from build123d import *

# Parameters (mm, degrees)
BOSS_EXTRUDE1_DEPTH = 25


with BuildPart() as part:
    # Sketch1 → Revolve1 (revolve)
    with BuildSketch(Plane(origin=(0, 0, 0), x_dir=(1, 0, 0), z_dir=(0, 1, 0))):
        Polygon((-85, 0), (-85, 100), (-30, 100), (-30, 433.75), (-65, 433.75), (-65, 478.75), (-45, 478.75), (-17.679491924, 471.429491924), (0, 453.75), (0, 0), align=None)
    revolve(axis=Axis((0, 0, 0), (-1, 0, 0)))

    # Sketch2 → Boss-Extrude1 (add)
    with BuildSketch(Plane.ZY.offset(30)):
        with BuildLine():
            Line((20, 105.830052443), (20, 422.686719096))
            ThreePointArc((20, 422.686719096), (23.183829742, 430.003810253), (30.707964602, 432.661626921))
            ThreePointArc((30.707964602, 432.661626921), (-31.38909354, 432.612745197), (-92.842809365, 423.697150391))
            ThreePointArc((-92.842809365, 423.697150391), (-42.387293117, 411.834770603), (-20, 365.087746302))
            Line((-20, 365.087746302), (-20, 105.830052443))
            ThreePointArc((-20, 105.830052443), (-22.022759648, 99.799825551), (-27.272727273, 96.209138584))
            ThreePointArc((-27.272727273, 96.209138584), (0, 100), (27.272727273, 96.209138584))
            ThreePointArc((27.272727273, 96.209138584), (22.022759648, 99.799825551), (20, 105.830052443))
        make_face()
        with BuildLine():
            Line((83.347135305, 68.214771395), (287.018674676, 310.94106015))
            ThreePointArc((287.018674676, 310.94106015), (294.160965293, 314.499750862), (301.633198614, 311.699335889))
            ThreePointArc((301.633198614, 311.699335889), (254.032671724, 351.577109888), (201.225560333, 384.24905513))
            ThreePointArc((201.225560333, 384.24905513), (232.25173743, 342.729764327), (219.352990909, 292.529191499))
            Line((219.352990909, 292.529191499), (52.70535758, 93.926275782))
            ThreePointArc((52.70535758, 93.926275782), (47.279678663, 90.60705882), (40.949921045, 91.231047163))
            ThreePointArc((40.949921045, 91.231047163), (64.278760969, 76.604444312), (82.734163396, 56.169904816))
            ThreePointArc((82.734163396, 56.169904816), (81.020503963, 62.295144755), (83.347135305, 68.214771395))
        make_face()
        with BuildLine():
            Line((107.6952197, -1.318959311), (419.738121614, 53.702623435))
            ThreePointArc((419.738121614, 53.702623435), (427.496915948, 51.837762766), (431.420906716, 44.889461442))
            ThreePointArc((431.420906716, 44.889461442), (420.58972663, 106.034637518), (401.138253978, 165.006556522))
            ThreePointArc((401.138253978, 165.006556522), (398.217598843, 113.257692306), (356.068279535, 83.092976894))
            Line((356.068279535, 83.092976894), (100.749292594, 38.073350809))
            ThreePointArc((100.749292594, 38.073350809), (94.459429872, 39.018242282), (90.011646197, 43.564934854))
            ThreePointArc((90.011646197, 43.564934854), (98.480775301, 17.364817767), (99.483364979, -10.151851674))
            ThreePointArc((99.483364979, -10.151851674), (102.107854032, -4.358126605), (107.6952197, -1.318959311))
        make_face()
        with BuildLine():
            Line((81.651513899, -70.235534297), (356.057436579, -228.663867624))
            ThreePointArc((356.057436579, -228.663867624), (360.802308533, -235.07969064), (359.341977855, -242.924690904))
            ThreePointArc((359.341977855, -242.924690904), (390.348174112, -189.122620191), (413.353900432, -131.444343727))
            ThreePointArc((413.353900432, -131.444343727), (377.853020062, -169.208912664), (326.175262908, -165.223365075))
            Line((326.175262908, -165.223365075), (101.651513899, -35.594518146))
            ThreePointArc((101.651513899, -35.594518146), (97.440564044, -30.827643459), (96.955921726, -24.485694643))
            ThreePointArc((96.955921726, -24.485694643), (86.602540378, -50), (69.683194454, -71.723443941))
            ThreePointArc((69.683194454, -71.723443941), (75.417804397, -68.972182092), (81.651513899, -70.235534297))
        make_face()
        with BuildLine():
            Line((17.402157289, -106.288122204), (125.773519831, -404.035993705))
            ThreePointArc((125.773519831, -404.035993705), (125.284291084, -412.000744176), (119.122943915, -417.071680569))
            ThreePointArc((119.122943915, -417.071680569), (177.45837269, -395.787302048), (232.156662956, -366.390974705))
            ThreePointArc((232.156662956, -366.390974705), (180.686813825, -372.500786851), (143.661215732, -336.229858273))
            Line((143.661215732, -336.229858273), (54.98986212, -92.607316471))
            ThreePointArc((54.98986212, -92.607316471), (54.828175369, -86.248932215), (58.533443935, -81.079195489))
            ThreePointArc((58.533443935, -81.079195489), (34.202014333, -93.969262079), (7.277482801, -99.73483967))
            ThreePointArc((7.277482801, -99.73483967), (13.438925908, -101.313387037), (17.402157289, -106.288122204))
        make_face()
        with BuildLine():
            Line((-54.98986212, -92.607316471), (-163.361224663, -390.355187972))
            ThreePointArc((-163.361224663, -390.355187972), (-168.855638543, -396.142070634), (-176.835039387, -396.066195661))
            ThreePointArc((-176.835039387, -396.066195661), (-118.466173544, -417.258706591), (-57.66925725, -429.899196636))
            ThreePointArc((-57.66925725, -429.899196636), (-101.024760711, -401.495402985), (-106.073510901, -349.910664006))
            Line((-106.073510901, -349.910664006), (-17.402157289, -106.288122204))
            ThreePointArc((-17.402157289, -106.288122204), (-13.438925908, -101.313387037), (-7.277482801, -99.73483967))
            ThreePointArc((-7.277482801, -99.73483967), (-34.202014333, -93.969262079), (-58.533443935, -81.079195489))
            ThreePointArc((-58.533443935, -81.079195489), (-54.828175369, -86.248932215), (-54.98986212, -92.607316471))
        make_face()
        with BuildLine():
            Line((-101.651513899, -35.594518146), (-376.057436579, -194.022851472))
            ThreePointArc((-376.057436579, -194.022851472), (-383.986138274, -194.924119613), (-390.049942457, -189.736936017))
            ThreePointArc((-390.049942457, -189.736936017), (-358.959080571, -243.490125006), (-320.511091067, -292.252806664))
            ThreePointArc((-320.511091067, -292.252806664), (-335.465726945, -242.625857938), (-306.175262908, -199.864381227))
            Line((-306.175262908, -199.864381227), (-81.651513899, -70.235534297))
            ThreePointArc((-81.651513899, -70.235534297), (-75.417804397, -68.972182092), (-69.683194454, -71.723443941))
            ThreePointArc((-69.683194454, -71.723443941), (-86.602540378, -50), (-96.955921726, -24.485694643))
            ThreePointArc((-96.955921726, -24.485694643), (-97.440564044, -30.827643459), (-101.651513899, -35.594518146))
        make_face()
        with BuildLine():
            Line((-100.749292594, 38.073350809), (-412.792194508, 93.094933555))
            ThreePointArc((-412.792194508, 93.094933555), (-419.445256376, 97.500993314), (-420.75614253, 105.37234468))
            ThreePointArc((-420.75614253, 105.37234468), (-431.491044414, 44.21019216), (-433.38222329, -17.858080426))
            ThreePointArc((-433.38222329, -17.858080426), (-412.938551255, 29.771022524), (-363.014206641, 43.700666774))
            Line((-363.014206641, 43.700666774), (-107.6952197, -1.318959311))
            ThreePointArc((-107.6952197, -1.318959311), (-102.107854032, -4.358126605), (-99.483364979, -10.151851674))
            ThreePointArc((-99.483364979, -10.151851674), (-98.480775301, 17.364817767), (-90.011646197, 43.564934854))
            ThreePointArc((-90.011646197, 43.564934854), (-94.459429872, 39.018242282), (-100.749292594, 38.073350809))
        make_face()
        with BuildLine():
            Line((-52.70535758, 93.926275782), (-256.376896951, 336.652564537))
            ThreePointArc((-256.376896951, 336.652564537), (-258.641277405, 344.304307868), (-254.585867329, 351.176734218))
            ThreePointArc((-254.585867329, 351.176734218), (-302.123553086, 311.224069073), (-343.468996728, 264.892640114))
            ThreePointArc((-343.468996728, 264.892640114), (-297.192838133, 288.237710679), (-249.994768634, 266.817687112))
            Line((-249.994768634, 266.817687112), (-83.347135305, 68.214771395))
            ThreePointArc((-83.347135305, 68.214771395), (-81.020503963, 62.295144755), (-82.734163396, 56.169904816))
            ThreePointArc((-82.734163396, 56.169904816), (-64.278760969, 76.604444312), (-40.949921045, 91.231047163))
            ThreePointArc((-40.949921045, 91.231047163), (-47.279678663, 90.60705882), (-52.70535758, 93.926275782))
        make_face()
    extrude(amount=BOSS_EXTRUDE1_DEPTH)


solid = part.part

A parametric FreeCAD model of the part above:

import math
import FreeCAD as App
import Part
import Sketcher

V = App.Vector
Q = App.Units.Quantity

doc = App.newDocument("Part")
body = doc.addObject("PartDesign::Body", "Body")

sketch1 = doc.addObject("Sketcher::SketchObject", "Sketch")
body.addObject(sketch1)
sketch1.AttachmentSupport = (doc.XZ_Plane, [""])
sketch1.MapMode = "FlatFace"
sketch1.addGeometry([
    Part.LineSegment(V(-85, -100, 0), V(-85, 0, 0)),
    Part.LineSegment(V(-85, 0, 0), V(0, 0, 0)),
    Part.LineSegment(V(0, 0, 0), V(0, -453.75, 0)),
    Part.LineSegment(V(0, -453.75, 0), V(-17.679492, -471.429492, 0)),
    Part.LineSegment(V(-17.679492, -471.429492, 0), V(-45, -478.75, 0)),
    Part.LineSegment(V(-45, -478.75, 0), V(-65, -478.75, 0)),
    Part.LineSegment(V(-65, -478.75, 0), V(-65, -433.75, 0)),
    Part.LineSegment(V(-65, -433.75, 0), V(-30, -433.75, 0)),
    Part.LineSegment(V(-30, -433.75, 0), V(-30, -100, 0)),
    Part.LineSegment(V(-30, -100, 0), V(-85, -100, 0)),
], False)
sketch1.addConstraint([
    Sketcher.Constraint("Coincident", 0, 2, 1, 1),
    Sketcher.Constraint("Coincident", 1, 2, 2, 1),
    Sketcher.Constraint("Coincident", 2, 2, 3, 1),
    Sketcher.Constraint("Coincident", 3, 2, 4, 1),
    Sketcher.Constraint("Coincident", 4, 2, 5, 1),
    Sketcher.Constraint("Coincident", 5, 2, 6, 1),
    Sketcher.Constraint("Coincident", 6, 2, 7, 1),
    Sketcher.Constraint("Coincident", 7, 2, 8, 1),
    Sketcher.Constraint("Coincident", 8, 2, 9, 1),
    Sketcher.Constraint("Coincident", 9, 2, 0, 1),
    Sketcher.Constraint("Vertical", 0),
    Sketcher.Constraint("Horizontal", 1),
    Sketcher.Constraint("Vertical", 2),
    Sketcher.Constraint("Horizontal", 5),
    Sketcher.Constraint("Vertical", 6),
    Sketcher.Constraint("Horizontal", 7),
    Sketcher.Constraint("Vertical", 8),
    Sketcher.Constraint("Horizontal", 9),
    Sketcher.Constraint("Coincident", 1, 2, -1, 1),
    Sketcher.Constraint("DistanceX", 1, 1, 1, 2, Q("85 mm")),
    Sketcher.Constraint("DistanceX", 5, 2, 5, 1, Q("20 mm")),
    Sketcher.Constraint("DistanceX", 7, 1, 7, 2, Q("35 mm")),
    Sketcher.Constraint("DistanceX", 9, 2, 9, 1, Q("55 mm")),
    Sketcher.Constraint("DistanceY", 0, 1, 0, 2, Q("100 mm")),
    Sketcher.Constraint("DistanceY", 6, 1, 6, 2, Q("45 mm")),
    Sketcher.Constraint("Angle", 3, Q("-135 deg")),
    Sketcher.Constraint("Angle", 4, Q("-165 deg")),
    Sketcher.Constraint("DistanceY", 4, 2, 2, 2, Q("25 mm")),
    Sketcher.Constraint("DistanceY", 2, 2, 2, 1, Q("453.75 mm")),
])
revolution = doc.addObject("PartDesign::Revolution", "Revolution")
body.addObject(revolution)
revolution.Profile = sketch1
revolution.ReferenceAxis = (sketch1, ["H_Axis"])
revolution.Angle = 360

sketch2 = doc.addObject("Sketcher::SketchObject", "Sketch001")
body.addObject(sketch2)
sketch2.AttachmentSupport = (doc.YZ_Plane, [""])
sketch2.MapMode = "FlatFace"
sketch2.AttachmentOffset = App.Placement(V(0, 0, -30), App.Rotation())
sketch2.addGeometry([
    Part.LineSegment(V(105.830052, 20, 0), V(422.686719, 20, 0)),
    Part.ArcOfCircle(Part.Circle(V(422.686719, 30, 0), V(0, 0, 1), 10), math.radians(-90), math.radians(4.059735)),
    Part.ArcOfCircle(Part.Circle(V(0, 0, 0), V(0, 0, 1), 433.75), math.radians(-12.359613), math.radians(4.059735)),
    Part.ArcOfCircle(Part.Circle(V(365.087746, -80, 0), V(0, 0, 1), 60), math.radians(-12.359613), math.radians(90)),
    Part.LineSegment(V(365.087746, -20, 0), V(105.830052, -20, 0)),
    Part.ArcOfCircle(Part.Circle(V(105.830052, -30, 0), V(0, 0, 1), 10), math.radians(90), math.radians(164.17338)),
    Part.ArcOfCircle(Part.Circle(V(0, 0, 0), V(0, 0, 1), 100), math.radians(-15.82662), math.radians(15.82662)),
    Part.ArcOfCircle(Part.Circle(V(105.830052, 30, 0), V(0, 0, 1), 10), math.radians(-164.17338), math.radians(-90)),
    Part.LineSegment(V(68.214771, 83.347135, 0), V(310.94106, 287.018675, 0)),
    Part.ArcOfCircle(Part.Circle(V(304.513184, 294.679119, 0), V(0, 0, 1), 10), math.radians(-50), math.radians(44.059735)),
    Part.ArcOfCircle(Part.Circle(V(0, 0, 0), V(0, 0, 1), 433.75), math.radians(27.640387), math.radians(44.059735)),
    Part.ArcOfCircle(Part.Circle(V(331.096448, 173.390324, 0), V(0, 0, 1), 60), math.radians(27.640387), math.radians(130)),
    Part.LineSegment(V(292.529191, 219.352991, 0), V(93.926276, 52.705358, 0)),
    Part.ArcOfCircle(Part.Circle(V(100.354152, 45.044913, 0), V(0, 0, 1), 10), math.radians(130), math.radians(204.17338)),
    Part.ArcOfCircle(Part.Circle(V(0, 0, 0), V(0, 0, 1), 100), math.radians(24.17338), math.radians(55.82662)),
    Part.ArcOfCircle(Part.Circle(V(61.786895, 91.00758, 0), V(0, 0, 1), 10), math.radians(-124.17338), math.radians(-50)),
    Part.LineSegment(V(-1.318959, 107.69522, 0), V(53.702623, 419.738122, 0)),
    Part.ArcOfCircle(Part.Circle(V(43.854546, 421.474603, 0), V(0, 0, 1), 10), math.radians(-10), math.radians(84.059735)),
    Part.ArcOfCircle(Part.Circle(V(0, 0, 0), V(0, 0, 1), 433.75), math.radians(67.640387), math.radians(84.059735)),
    Part.ArcOfCircle(Part.Circle(V(142.181442, 345.649389, 0), V(0, 0, 1), 60), math.radians(67.640387), math.radians(170)),
    Part.LineSegment(V(83.092977, 356.06828, 0), V(38.073351, 100.749293, 0)),
    Part.ArcOfCircle(Part.Circle(V(47.921428, 99.012811, 0), V(0, 0, 1), 10), math.radians(170), math.radians(244.17338)),
    Part.ArcOfCircle(Part.Circle(V(0, 0, 0), V(0, 0, 1), 100), math.radians(64.17338), math.radians(95.82662)),
    Part.ArcOfCircle(Part.Circle(V(-11.167037, 109.431701, 0), V(0, 0, 1), 10), math.radians(-84.17338), math.radians(-10)),
    Part.LineSegment(V(-70.235534, 81.651514, 0), V(-228.663868, 356.057437, 0)),
    Part.ArcOfCircle(Part.Circle(V(-237.324122, 351.057437, 0), V(0, 0, 1), 10), math.radians(30), math.radians(124.059735)),
    Part.ArcOfCircle(Part.Circle(V(0, 0, 0), V(0, 0, 1), 433.75), math.radians(107.640387), math.radians(124.059735)),
    Part.ArcOfCircle(Part.Circle(V(-113.261841, 356.175263, 0), V(0, 0, 1), 60), math.radians(107.640387), math.radians(210)),
    Part.LineSegment(V(-165.223365, 326.175263, 0), V(-35.594518, 101.651514, 0)),
    Part.ArcOfCircle(Part.Circle(V(-26.934264, 106.651514, 0), V(0, 0, 1), 10), math.radians(-150), math.radians(-75.82662)),
    Part.ArcOfCircle(Part.Circle(V(0, 0, 0), V(0, 0, 1), 100), math.radians(104.17338), math.radians(135.82662)),
    Part.ArcOfCircle(Part.Circle(V(-78.895788, 76.651514, 0), V(0, 0, 1), 10), math.radians(-44.17338), math.radians(30)),
    Part.LineSegment(V(-106.288122, 17.402157, 0), V(-404.035994, 125.77352, 0)),
    Part.ArcOfCircle(Part.Circle(V(-407.456195, 116.376594, 0), V(0, 0, 1), 10), math.radians(70), math.radians(164.059735)),
    Part.ArcOfCircle(Part.Circle(V(0, 0, 0), V(0, 0, 1), 433.75), math.radians(147.640387), math.radians(164.059735)),
    Part.ArcOfCircle(Part.Circle(V(-315.70865, 200.042773, 0), V(0, 0, 1), 60), math.radians(147.640387), math.radians(250)),
    Part.LineSegment(V(-336.229858, 143.661216, 0), V(-92.607316, 54.989862, 0)),
    Part.ArcOfCircle(Part.Circle(V(-89.187115, 64.386788, 0), V(0, 0, 1), 10), math.radians(-110), math.radians(-35.82662)),
    Part.ArcOfCircle(Part.Circle(V(0, 0, 0), V(0, 0, 1), 100), math.radians(144.17338), math.radians(175.82662)),
    Part.ArcOfCircle(Part.Circle(V(-109.708324, 8.005231, 0), V(0, 0, 1), 10), math.radians(-4.17338), math.radians(70)),
    Part.LineSegment(V(-92.607316, -54.989862, 0), V(-390.355188, -163.361225, 0)),
    Part.ArcOfCircle(Part.Circle(V(-386.934987, -172.758151, 0), V(0, 0, 1), 10), math.radians(110), math.radians(204.059735)),
    Part.ArcOfCircle(Part.Circle(V(0, 0, 0), V(0, 0, 1), 433.75), math.radians(-172.359613), math.radians(-155.940265)),
    Part.ArcOfCircle(Part.Circle(V(-370.431873, -49.691954, 0), V(0, 0, 1), 60), math.radians(-172.359613), math.radians(-70)),
    Part.LineSegment(V(-349.910664, -106.073511, 0), V(-106.288122, -17.402157, 0)),
    Part.ArcOfCircle(Part.Circle(V(-109.708324, -8.005231, 0), V(0, 0, 1), 10), math.radians(-70), math.radians(4.17338)),
    Part.ArcOfCircle(Part.Circle(V(0, 0, 0), V(0, 0, 1), 100), math.radians(-175.82662), math.radians(-144.17338)),
    Part.ArcOfCircle(Part.Circle(V(-89.187115, -64.386788, 0), V(0, 0, 1), 10), math.radians(35.82662), math.radians(110)),
    Part.LineSegment(V(-35.594518, -101.651514, 0), V(-194.022851, -376.057437, 0)),
    Part.ArcOfCircle(Part.Circle(V(-185.362597, -381.057437, 0), V(0, 0, 1), 10), math.radians(150), math.radians(244.059735)),
    Part.ArcOfCircle(Part.Circle(V(0, 0, 0), V(0, 0, 1), 433.75), math.radians(-132.359613), math.radians(-115.940265)),
    Part.ArcOfCircle(Part.Circle(V(-251.825905, -276.175263, 0), V(0, 0, 1), 60), math.radians(-132.359613), math.radians(-30)),
    Part.LineSegment(V(-199.864381, -306.175263, 0), V(-70.235534, -81.651514, 0)),
    Part.ArcOfCircle(Part.Circle(V(-78.895788, -76.651514, 0), V(0, 0, 1), 10), math.radians(-30), math.radians(44.17338)),
    Part.ArcOfCircle(Part.Circle(V(0, 0, 0), V(0, 0, 1), 100), math.radians(-135.82662), math.radians(-104.17338)),
    Part.ArcOfCircle(Part.Circle(V(-26.934264, -106.651514, 0), V(0, 0, 1), 10), math.radians(75.82662), math.radians(150)),
    Part.LineSegment(V(38.073351, -100.749293, 0), V(93.094934, -412.792195, 0)),
    Part.ArcOfCircle(Part.Circle(V(102.943011, -411.055713, 0), V(0, 0, 1), 10), math.radians(-170), math.radians(-75.940265)),
    Part.ArcOfCircle(Part.Circle(V(0, 0, 0), V(0, 0, 1), 433.75), math.radians(-92.359613), math.radians(-75.940265)),
    Part.ArcOfCircle(Part.Circle(V(-15.387798, -373.433097, 0), V(0, 0, 1), 60), math.radians(-92.359613), math.radians(10)),
    Part.LineSegment(V(43.700667, -363.014207, 0), V(-1.318959, -107.69522, 0)),
    Part.ArcOfCircle(Part.Circle(V(-11.167037, -109.431701, 0), V(0, 0, 1), 10), math.radians(10), math.radians(84.17338)),
    Part.ArcOfCircle(Part.Circle(V(0, 0, 0), V(0, 0, 1), 100), math.radians(-95.82662), math.radians(-64.17338)),
    Part.ArcOfCircle(Part.Circle(V(47.921428, -99.012811, 0), V(0, 0, 1), 10), math.radians(115.82662), math.radians(190)),
    Part.LineSegment(V(93.926276, -52.705358, 0), V(336.652565, -256.376897, 0)),
    Part.ArcOfCircle(Part.Circle(V(343.080441, -248.716453, 0), V(0, 0, 1), 10), math.radians(-130), math.radians(-35.940265)),
    Part.ArcOfCircle(Part.Circle(V(0, 0, 0), V(0, 0, 1), 433.75), math.radians(-52.359613), math.radians(-35.940265)),
    Part.ArcOfCircle(Part.Circle(V(228.250431, -295.957435, 0), V(0, 0, 1), 60), math.radians(-52.359613), math.radians(50)),
    Part.LineSegment(V(266.817687, -249.994769, 0), V(68.214771, -83.347135, 0)),
    Part.ArcOfCircle(Part.Circle(V(61.786895, -91.00758, 0), V(0, 0, 1), 10), math.radians(50), math.radians(124.17338)),
    Part.ArcOfCircle(Part.Circle(V(0, 0, 0), V(0, 0, 1), 100), math.radians(-55.82662), math.radians(-24.17338)),
    Part.ArcOfCircle(Part.Circle(V(100.354152, -45.044913, 0), V(0, 0, 1), 10), math.radians(155.82662), math.radians(230)),
], False)
sketch2.addConstraint([
    Sketcher.Constraint("Tangent", 0, 2, 1, 1),
    Sketcher.Constraint("Tangent", 1, 2, 2, 2),
    Sketcher.Constraint("Tangent", 2, 1, 3, 1),
    Sketcher.Constraint("Tangent", 3, 2, 4, 1),
    Sketcher.Constraint("Tangent", 4, 2, 5, 1),
    Sketcher.Constraint("Tangent", 5, 2, 6, 1),
    Sketcher.Constraint("Tangent", 6, 2, 7, 1),
    Sketcher.Constraint("Tangent", 7, 2, 0, 1),
    Sketcher.Constraint("Tangent", 8, 2, 9, 1),
    Sketcher.Constraint("Tangent", 9, 2, 10, 2),
    Sketcher.Constraint("Tangent", 10, 1, 11, 1),
    Sketcher.Constraint("Tangent", 11, 2, 12, 1),
    Sketcher.Constraint("Tangent", 12, 2, 13, 1),
    Sketcher.Constraint("Tangent", 13, 2, 14, 1),
    Sketcher.Constraint("Tangent", 14, 2, 15, 1),
    Sketcher.Constraint("Tangent", 15, 2, 8, 1),
    Sketcher.Constraint("Tangent", 16, 2, 17, 1),
    Sketcher.Constraint("Tangent", 17, 2, 18, 2),
    Sketcher.Constraint("Tangent", 18, 1, 19, 1),
    Sketcher.Constraint("Tangent", 19, 2, 20, 1),
    Sketcher.Constraint("Tangent", 20, 2, 21, 1),
    Sketcher.Constraint("Tangent", 21, 2, 22, 1),
    Sketcher.Constraint("Tangent", 22, 2, 23, 1),
    Sketcher.Constraint("Tangent", 23, 2, 16, 1),
    Sketcher.Constraint("Tangent", 24, 2, 25, 1),
    Sketcher.Constraint("Tangent", 25, 2, 26, 2),
    Sketcher.Constraint("Tangent", 26, 1, 27, 1),
    Sketcher.Constraint("Tangent", 27, 2, 28, 1),
    Sketcher.Constraint("Tangent", 28, 2, 29, 1),
    Sketcher.Constraint("Tangent", 29, 2, 30, 1),
    Sketcher.Constraint("Tangent", 30, 2, 31, 1),
    Sketcher.Constraint("Tangent", 31, 2, 24, 1),
    Sketcher.Constraint("Tangent", 32, 2, 33, 1),
    Sketcher.Constraint("Tangent", 33, 2, 34, 2),
    Sketcher.Constraint("Tangent", 34, 1, 35, 1),
    Sketcher.Constraint("Tangent", 35, 2, 36, 1),
    Sketcher.Constraint("Tangent", 36, 2, 37, 1),
    Sketcher.Constraint("Tangent", 37, 2, 38, 1),
    Sketcher.Constraint("Tangent", 38, 2, 39, 1),
    Sketcher.Constraint("Tangent", 39, 2, 32, 1),
    Sketcher.Constraint("Tangent", 40, 2, 41, 1),
    Sketcher.Constraint("Tangent", 41, 2, 42, 2),
    Sketcher.Constraint("Tangent", 42, 1, 43, 1),
    Sketcher.Constraint("Tangent", 43, 2, 44, 1),
    Sketcher.Constraint("Tangent", 44, 2, 45, 1),
    Sketcher.Constraint("Tangent", 45, 2, 46, 1),
    Sketcher.Constraint("Tangent", 46, 2, 47, 1),
    Sketcher.Constraint("Tangent", 47, 2, 40, 1),
    Sketcher.Constraint("Tangent", 48, 2, 49, 1),
    Sketcher.Constraint("Tangent", 49, 2, 50, 2),
    Sketcher.Constraint("Tangent", 50, 1, 51, 1),
    Sketcher.Constraint("Tangent", 51, 2, 52, 1),
    Sketcher.Constraint("Tangent", 52, 2, 53, 1),
    Sketcher.Constraint("Tangent", 53, 2, 54, 1),
    Sketcher.Constraint("Tangent", 54, 2, 55, 1),
    Sketcher.Constraint("Tangent", 55, 2, 48, 1),
    Sketcher.Constraint("Tangent", 56, 2, 57, 1),
    Sketcher.Constraint("Tangent", 57, 2, 58, 2),
    Sketcher.Constraint("Tangent", 58, 1, 59, 1),
    Sketcher.Constraint("Tangent", 59, 2, 60, 1),
    Sketcher.Constraint("Tangent", 60, 2, 61, 1),
    Sketcher.Constraint("Tangent", 61, 2, 62, 1),
    Sketcher.Constraint("Tangent", 62, 2, 63, 1),
    Sketcher.Constraint("Tangent", 63, 2, 56, 1),
    Sketcher.Constraint("Tangent", 64, 2, 65, 1),
    Sketcher.Constraint("Tangent", 65, 2, 66, 2),
    Sketcher.Constraint("Tangent", 66, 1, 67, 1),
    Sketcher.Constraint("Tangent", 67, 2, 68, 1),
    Sketcher.Constraint("Tangent", 68, 2, 69, 1),
    Sketcher.Constraint("Tangent", 69, 2, 70, 1),
    Sketcher.Constraint("Tangent", 70, 2, 71, 1),
    Sketcher.Constraint("Tangent", 71, 2, 64, 1),
    Sketcher.Constraint("Horizontal", 0),
    Sketcher.Constraint("Horizontal", 4),
    Sketcher.Constraint("Coincident", 2, 3, -1, 1),
    Sketcher.Constraint("Coincident", 6, 3, -1, 1),
    Sketcher.Constraint("Coincident", 10, 3, -1, 1),
    Sketcher.Constraint("Coincident", 14, 3, -1, 1),
    Sketcher.Constraint("Coincident", 18, 3, -1, 1),
    Sketcher.Constraint("Coincident", 22, 3, -1, 1),
    Sketcher.Constraint("Coincident", 26, 3, -1, 1),
    Sketcher.Constraint("Coincident", 30, 3, -1, 1),
    Sketcher.Constraint("Coincident", 34, 3, -1, 1),
    Sketcher.Constraint("Coincident", 38, 3, -1, 1),
    Sketcher.Constraint("Coincident", 42, 3, -1, 1),
    Sketcher.Constraint("Coincident", 46, 3, -1, 1),
    Sketcher.Constraint("Coincident", 50, 3, -1, 1),
    Sketcher.Constraint("Coincident", 54, 3, -1, 1),
    Sketcher.Constraint("Coincident", 58, 3, -1, 1),
    Sketcher.Constraint("Coincident", 62, 3, -1, 1),
    Sketcher.Constraint("Coincident", 66, 3, -1, 1),
    Sketcher.Constraint("Coincident", 70, 3, -1, 1),
    Sketcher.Constraint("Equal", 1, 5),
    Sketcher.Constraint("Equal", 5, 7),
    Sketcher.Constraint("Equal", 7, 9),
    Sketcher.Constraint("Equal", 2, 10),
    Sketcher.Constraint("Equal", 3, 11),
    Sketcher.Constraint("Equal", 9, 13),
    Sketcher.Constraint("Equal", 6, 14),
    Sketcher.Constraint("Equal", 13, 15),
    Sketcher.Constraint("Equal", 15, 17),
    Sketcher.Constraint("Equal", 10, 18),
    Sketcher.Constraint("Equal", 11, 19),
    Sketcher.Constraint("Equal", 17, 21),
    Sketcher.Constraint("Equal", 14, 22),
    Sketcher.Constraint("Equal", 21, 23),
    Sketcher.Constraint("Equal", 23, 25),
    Sketcher.Constraint("Equal", 18, 26),
    Sketcher.Constraint("Equal", 19, 27),
    Sketcher.Constraint("Equal", 25, 29),
    Sketcher.Constraint("Equal", 22, 30),
    Sketcher.Constraint("Equal", 29, 31),
    Sketcher.Constraint("Equal", 31, 33),
    Sketcher.Constraint("Equal", 26, 34),
    Sketcher.Constraint("Equal", 27, 35),
    Sketcher.Constraint("Equal", 33, 37),
    Sketcher.Constraint("Equal", 30, 38),
    Sketcher.Constraint("Equal", 37, 39),
    Sketcher.Constraint("Equal", 39, 41),
    Sketcher.Constraint("Equal", 34, 42),
    Sketcher.Constraint("Equal", 35, 43),
    Sketcher.Constraint("Equal", 41, 45),
    Sketcher.Constraint("Equal", 38, 46),
    Sketcher.Constraint("Equal", 45, 47),
    Sketcher.Constraint("Equal", 47, 49),
    Sketcher.Constraint("Equal", 42, 50),
    Sketcher.Constraint("Equal", 43, 51),
    Sketcher.Constraint("Equal", 49, 53),
    Sketcher.Constraint("Equal", 46, 54),
    Sketcher.Constraint("Equal", 53, 55),
    Sketcher.Constraint("Equal", 55, 57),
    Sketcher.Constraint("Equal", 50, 58),
    Sketcher.Constraint("Equal", 51, 59),
    Sketcher.Constraint("Equal", 57, 61),
    Sketcher.Constraint("Equal", 54, 62),
    Sketcher.Constraint("Equal", 61, 63),
    Sketcher.Constraint("Equal", 63, 65),
    Sketcher.Constraint("Equal", 58, 66),
    Sketcher.Constraint("Equal", 59, 67),
    Sketcher.Constraint("Equal", 65, 69),
    Sketcher.Constraint("Equal", 62, 70),
    Sketcher.Constraint("Equal", 69, 71),
    Sketcher.Constraint("Symmetric", 39, 2, 44, 2, -1),
    Sketcher.Constraint("Symmetric", 36, 2, 47, 2, -1),
    Sketcher.Constraint("Symmetric", 31, 2, 52, 2, -1),
    Sketcher.Constraint("Symmetric", 28, 2, 55, 2, -1),
    Sketcher.Constraint("Symmetric", 23, 2, 60, 2, -1),
    Sketcher.Constraint("Symmetric", 20, 2, 63, 2, -1),
    Sketcher.Constraint("Symmetric", 15, 2, 68, 2, -1),
    Sketcher.Constraint("Symmetric", 12, 2, 71, 2, -1),
    Sketcher.Constraint("Parallel", 8, 12),
    Sketcher.Constraint("Parallel", 16, 20),
    Sketcher.Constraint("Parallel", 24, 28),
    Sketcher.Constraint("Parallel", 32, 36),
    Sketcher.Constraint("Vertical", 5, 3, 7, 3),
    Sketcher.Constraint("Equal", 8, 16),
    Sketcher.Constraint("Equal", 12, 20),
    Sketcher.Constraint("Equal", 16, 24),
    Sketcher.Constraint("Equal", 20, 28),
    Sketcher.Constraint("Equal", 24, 32),
    Sketcher.Constraint("Equal", 28, 36),
    Sketcher.Constraint("Equal", 32, 40),
    Sketcher.Constraint("Radius", 1, Q("10 mm")),
    Sketcher.Constraint("Radius", 3, Q("60 mm")),
    Sketcher.Constraint("Radius", 6, Q("100 mm")),
    Sketcher.Constraint("Angle", 8, Q("40 deg")),
    Sketcher.Constraint("Angle", 16, Q("80 deg")),
    Sketcher.Constraint("Angle", 24, Q("120 deg")),
    Sketcher.Constraint("Angle", 32, Q("160 deg")),
    Sketcher.Constraint("Radius", 2, Q("433.75 mm")),
    Sketcher.Constraint("DistanceY", -1, 1, 1, 3, Q("30 mm")),
    Sketcher.Constraint("DistanceY", -1, 1, 23, 3, Q("109.431701 mm")),
])
pad1 = doc.addObject("PartDesign::Pad", "Pad")
body.addObject(pad1)
pad1.Profile = sketch2
pad1.Length = 25
pad1.Reversed = True

doc.recompute()
